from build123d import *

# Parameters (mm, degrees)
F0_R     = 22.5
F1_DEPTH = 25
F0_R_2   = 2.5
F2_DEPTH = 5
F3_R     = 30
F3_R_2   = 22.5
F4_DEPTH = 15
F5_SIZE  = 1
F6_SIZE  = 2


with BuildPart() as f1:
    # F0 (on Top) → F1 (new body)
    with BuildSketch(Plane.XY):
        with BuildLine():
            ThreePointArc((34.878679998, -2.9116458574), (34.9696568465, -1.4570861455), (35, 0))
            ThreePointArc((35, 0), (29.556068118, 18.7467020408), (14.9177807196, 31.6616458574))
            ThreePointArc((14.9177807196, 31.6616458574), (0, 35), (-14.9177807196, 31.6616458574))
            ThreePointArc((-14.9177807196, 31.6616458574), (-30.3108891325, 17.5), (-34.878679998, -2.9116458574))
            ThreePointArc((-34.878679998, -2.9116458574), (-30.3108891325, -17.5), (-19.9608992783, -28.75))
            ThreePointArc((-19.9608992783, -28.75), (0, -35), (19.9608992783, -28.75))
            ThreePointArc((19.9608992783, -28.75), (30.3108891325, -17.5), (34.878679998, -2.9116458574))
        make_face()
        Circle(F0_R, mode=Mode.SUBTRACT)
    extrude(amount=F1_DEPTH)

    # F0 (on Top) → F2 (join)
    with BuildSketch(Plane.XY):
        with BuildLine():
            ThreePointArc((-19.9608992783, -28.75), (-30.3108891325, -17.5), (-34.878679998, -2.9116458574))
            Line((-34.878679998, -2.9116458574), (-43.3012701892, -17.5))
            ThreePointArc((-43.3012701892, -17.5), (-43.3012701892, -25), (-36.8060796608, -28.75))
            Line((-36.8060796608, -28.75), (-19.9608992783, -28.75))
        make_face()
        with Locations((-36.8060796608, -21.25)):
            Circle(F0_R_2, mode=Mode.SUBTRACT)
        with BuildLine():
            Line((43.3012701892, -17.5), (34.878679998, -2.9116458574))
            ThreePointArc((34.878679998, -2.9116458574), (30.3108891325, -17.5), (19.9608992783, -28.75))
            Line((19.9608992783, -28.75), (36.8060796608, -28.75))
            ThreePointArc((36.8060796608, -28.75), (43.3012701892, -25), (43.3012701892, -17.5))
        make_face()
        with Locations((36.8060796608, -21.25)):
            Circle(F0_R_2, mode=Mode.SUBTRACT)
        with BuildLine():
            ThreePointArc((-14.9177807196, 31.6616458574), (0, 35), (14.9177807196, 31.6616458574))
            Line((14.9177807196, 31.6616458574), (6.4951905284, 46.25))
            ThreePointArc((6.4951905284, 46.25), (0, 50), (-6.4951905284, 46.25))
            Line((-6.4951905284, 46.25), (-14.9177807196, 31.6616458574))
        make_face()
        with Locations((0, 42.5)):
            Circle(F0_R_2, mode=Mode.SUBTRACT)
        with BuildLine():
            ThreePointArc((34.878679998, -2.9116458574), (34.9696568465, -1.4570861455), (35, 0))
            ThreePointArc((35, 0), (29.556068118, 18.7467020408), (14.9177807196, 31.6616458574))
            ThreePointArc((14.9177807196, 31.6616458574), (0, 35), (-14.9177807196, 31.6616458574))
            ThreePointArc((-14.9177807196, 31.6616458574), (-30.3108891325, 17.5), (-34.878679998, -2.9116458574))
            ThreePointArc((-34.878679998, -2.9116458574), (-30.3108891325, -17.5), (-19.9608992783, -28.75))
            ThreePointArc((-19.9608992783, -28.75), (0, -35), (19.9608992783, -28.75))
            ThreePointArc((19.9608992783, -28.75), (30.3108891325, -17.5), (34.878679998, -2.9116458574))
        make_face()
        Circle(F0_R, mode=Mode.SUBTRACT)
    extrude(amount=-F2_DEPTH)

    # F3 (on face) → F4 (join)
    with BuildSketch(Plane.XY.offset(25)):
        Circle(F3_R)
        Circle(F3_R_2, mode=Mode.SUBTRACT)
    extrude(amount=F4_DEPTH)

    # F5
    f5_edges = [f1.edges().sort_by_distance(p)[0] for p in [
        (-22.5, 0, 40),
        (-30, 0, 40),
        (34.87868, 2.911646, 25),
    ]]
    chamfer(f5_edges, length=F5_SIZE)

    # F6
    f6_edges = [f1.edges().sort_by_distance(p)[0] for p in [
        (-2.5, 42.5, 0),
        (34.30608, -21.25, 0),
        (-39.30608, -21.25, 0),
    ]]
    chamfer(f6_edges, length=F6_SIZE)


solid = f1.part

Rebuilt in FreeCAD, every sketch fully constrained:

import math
import FreeCAD as App
import Part
import Sketcher
Q = App.Units.Quantity


def edges_at(feature, points):
    """Names of the edges that pass closest to the given points."""
    edges = feature.Shape.Edges
    near = lambda p: min(range(len(edges)), key=lambda i: edges[i].distToShape(Part.Vertex(*p))[0])
    return sorted({f"Edge{near(p) + 1}" for p in points})

doc = App.newDocument("Part")
body = doc.addObject("PartDesign::Body", "Body")

# Sketch on XY plane
sketch1 = body.newObject("Sketcher::SketchObject", "Sketch")
sketch1.AttachmentSupport = (doc.getObject("XY_Plane"), [""])
sketch1.MapMode = "FlatFace"
sketch1.addGeometry([
    Part.ArcOfCircle(Part.Circle(App.Vector(0, 0, 0), App.Vector(0, 0, 1), 35), math.radians(-4.77), math.radians(0)),  # 0
    Part.ArcOfCircle(Part.Circle(App.Vector(0, 0, 0), App.Vector(0, 0, 1), 35), math.radians(0), math.radians(65)),  # 1
    Part.ArcOfCircle(Part.Circle(App.Vector(0, 0, 0), App.Vector(0, 0, 1), 35), math.radians(65), math.radians(115)),  # 2
    Part.ArcOfCircle(Part.Circle(App.Vector(0, 0, 0), App.Vector(0, 0, 1), 35), math.radians(115), math.radians(185)),  # 3
    Part.ArcOfCircle(Part.Circle(App.Vector(0, 0, 0), App.Vector(0, 0, 1), 35), math.radians(-175), math.radians(-125)),  # 4
    Part.ArcOfCircle(Part.Circle(App.Vector(0, 0, 0), App.Vector(0, 0, 1), 35), math.radians(-125), math.radians(-55)),  # 5
    Part.ArcOfCircle(Part.Circle(App.Vector(0, 0, 0), App.Vector(0, 0, 1), 35), math.radians(-55), math.radians(-5)),  # 6
    Part.Circle(App.Vector(0, 0, 0), App.Vector(0, 0, 1), 22.5),  # 7
], False)
sketch1.addConstraint([
    Sketcher.Constraint("Tangent", 0, 2, 1, 1),
    Sketcher.Constraint("Tangent", 1, 2, 2, 1),
    Sketcher.Constraint("Tangent", 2, 2, 3, 1),
    Sketcher.Constraint("Tangent", 3, 2, 4, 1),
    Sketcher.Constraint("Tangent", 4, 2, 5, 1),
    Sketcher.Constraint("Tangent", 5, 2, 6, 1),
    Sketcher.Constraint("Tangent", 6, 2, 0, 1),
    Sketcher.Constraint("Coincident", 0, 3, -1, 1),
    Sketcher.Constraint("Coincident", 2, 3, -1, 1),
    Sketcher.Constraint("Coincident", 4, 3, -1, 1),
    Sketcher.Constraint("Coincident", 7, 3, -1, 1),
    Sketcher.Constraint("PointOnObject", 0, 2, -1),
    Sketcher.Constraint("Horizontal", 1, 2, 2, 2),
    Sketcher.Constraint("Horizontal", 4, 2, 5, 2),
    Sketcher.Constraint("Horizontal", 3, 2, 6, 2),
    Sketcher.Constraint("Diameter", 7, Q("45 mm")),
    Sketcher.Constraint("Radius", 0, Q("35 mm")),
    Sketcher.Constraint("DistanceY", 4, 2, -1, 1, Q("28.75 mm")),
    Sketcher.Constraint("DistanceX", -1, 1, 1, 2, Q("14.917781 mm")),
    Sketcher.Constraint("DistanceX", 3, 2, -1, 1, Q("34.87868 mm")),
])
pad1 = body.newObject("PartDesign::Pad", "Pad")
pad1.Profile = sketch1
pad1.Length = 25

# Sketch on XY plane
sketch2 = body.newObject("Sketcher::SketchObject", "Sketch001")
sketch2.AttachmentSupport = (doc.getObject("XY_Plane"), [""])
sketch2.MapMode = "FlatFace"
sketch2.addGeometry([
    Part.LineSegment(App.Vector(-36.8, -28.8, 0), App.Vector(-20, -28.8, 0)),  # 0
    Part.ArcOfCircle(Part.Circle(App.Vector(0, 0, 0), App.Vector(0, 0, 1), 35), math.radians(-125), math.radians(-55)),  # 1
    Part.LineSegment(App.Vector(20, -28.8, 0), App.Vector(36.8, -28.8, 0)),  # 2
    Part.ArcOfCircle(Part.Circle(App.Vector(36.8, -21.2, 0), App.Vector(0, 0, 1), 7.5), math.radians(-90), math.radians(30)),  # 3
    Part.LineSegment(App.Vector(43.3, -17.5, 0), App.Vector(34.9, -2.9, 0)),  # 4
    Part.ArcOfCircle(Part.Circle(App.Vector(0, 0, 0), App.Vector(0, 0, 1), 35), math.radians(-4.77), math.radians(0)),  # 5
    Part.ArcOfCircle(Part.Circle(App.Vector(0, 0, 0), App.Vector(0, 0, 1), 35), math.radians(0), math.radians(65)),  # 6
    Part.LineSegment(App.Vector(14.9, 31.7, 0), App.Vector(6.5, 46.2, 0)),  # 7
    Part.ArcOfCircle(Part.Circle(App.Vector(0, 42.5, 0), App.Vector(0, 0, 1), 7.5), math.radians(30), math.radians(150)),  # 8
    Part.LineSegment(App.Vector(-6.5, 46.2, 0), App.Vector(-14.9, 31.7, 0)),  # 9
    Part.ArcOfCircle(Part.Circle(App.Vector(0, 0, 0), App.Vector(0, 0, 1), 35), math.radians(115), math.radians(185)),  # 10
    Part.LineSegment(App.Vector(-34.9, -2.9, 0), App.Vector(-43.3, -17.5, 0)),  # 11
    Part.ArcOfCircle(Part.Circle(App.Vector(-36.8, -21.2, 0), App.Vector(0, 0, 1), 7.5), math.radians(150), math.radians(270)),  # 12
    Part.Circle(App.Vector(-36.8, -21.2, 0), App.Vector(0, 0, 1), 2.5),  # 13
    Part.Circle(App.Vector(36.8, -21.2, 0), App.Vector(0, 0, 1), 2.5),  # 14
    Part.Circle(App.Vector(0, 0, 0), App.Vector(0, 0, 1), 22.5),  # 15
    Part.Circle(App.Vector(0, 42.5, 0), App.Vector(0, 0, 1), 2.5),  # 16
], False)
sketch2.addConstraint([
    Sketcher.Constraint("Coincident", 0, 2, 1, 1),
    Sketcher.Constraint("Coincident", 1, 2, 2, 1),
    Sketcher.Constraint("Tangent", 2, 2, 3, 1),
    Sketcher.Constraint("Tangent", 3, 2, 4, 1),
    Sketcher.Constraint("Coincident", 4, 2, 5, 1),
    Sketcher.Constraint("Tangent", 5, 2, 6, 1),
    Sketcher.Constraint("Coincident", 6, 2, 7, 1),
    Sketcher.Constraint("Tangent", 7, 2, 8, 1),
    Sketcher.Constraint("Tangent", 8, 2, 9, 1),
    Sketcher.Constraint("Coincident", 9, 2, 10, 1),
    Sketcher.Constraint("Coincident", 10, 2, 11, 1),
    Sketcher.Constraint("Tangent", 11, 2, 12, 1),
    Sketcher.Constraint("Tangent", 12, 2, 0, 1),
    Sketcher.Constraint("Horizontal", 0),
    Sketcher.Constraint("Horizontal", 2),
    Sketcher.Constraint("Coincident", 1, 3, -1, 1),
    Sketcher.Constraint("Coincident", 5, 3, -1, 1),
    Sketcher.Constraint("Coincident", 10, 3, -1, 1),
    Sketcher.Constraint("Coincident", 15, 3, -1, 1),
    Sketcher.Constraint("Coincident", 13, 3, 12, 3),
    Sketcher.Constraint("Coincident", 14, 3, 3, 3),
    Sketcher.Constraint("Coincident", 16, 3, 8, 3),
    Sketcher.Constraint("Equal", 1, 5),
    Sketcher.Constraint("Equal", 5, 6),
    Sketcher.Constraint("Equal", 3, 8),
    Sketcher.Constraint("Equal", 6, 10),
    Sketcher.Constraint("Equal", 8, 12),
    Sketcher.Constraint("Equal", 13, 14),
    Sketcher.Constraint("Equal", 14, 16),
    Sketcher.Constraint("Symmetric", 3, 3, 12, 3, -2),
    Sketcher.Constraint("Symmetric", 7, 2, 8, 2, -2),
    Sketcher.Constraint("PointOnObject", 5, 2, -1),
    Sketcher.Constraint("Parallel", 4, 7),
    Sketcher.Constraint("Parallel", 9, 11),
    Sketcher.Constraint("Equal", 4, 7),
    Sketcher.Constraint("Diameter", 13, Q("5 mm")),
    Sketcher.Constraint("Diameter", 15, Q("45 mm")),
    Sketcher.Constraint("Radius", 1, Q("35 mm")),
    Sketcher.Constraint("Radius", 3, Q("7.5 mm")),
    Sketcher.Constraint("Angle", 4, Q("120 deg")),
    Sketcher.Constraint("DistanceY", -1, 1, 8, 3, Q("42.5 mm")),
    Sketcher.Constraint("DistanceY", 3, 2, -1, 1, Q("17.5 mm")),
])
pad2 = body.newObject("PartDesign::Pad", "Pad001")
pad2.Profile = sketch2
pad2.Length = 5
pad2.Reversed = True

# Sketch on XY plane
sketch3 = body.newObject("Sketcher::SketchObject", "Sketch002")
sketch3.AttachmentSupport = (doc.getObject("XY_Plane"), [""])
sketch3.MapMode = "FlatFace"
sketch3.AttachmentOffset = App.Placement(App.Vector(0, 0, 25), App.Rotation())
sketch3.addGeometry([
    Part.Circle(App.Vector(0, 0, 0), App.Vector(0, 0, 1), 30),
    Part.Circle(App.Vector(0, 0, 0), App.Vector(0, 0, 1), 22),
], False)
sketch3.addConstraint([
    Sketcher.Constraint("Coincident", 0, 3, -1, 1),
    Sketcher.Constraint("Coincident", 1, 3, -1, 1),
    Sketcher.Constraint("Diameter", 0, Q("60 mm")),
    Sketcher.Constraint("Diameter", 1, Q("45 mm")),
])
pad3 = body.newObject("PartDesign::Pad", "Pad002")
pad3.Profile = sketch3
pad3.Length = 15
doc.recompute()

chamfer = body.newObject("PartDesign::Chamfer", "Chamfer")
chamfer.Base = (pad3, edges_at(pad3, [(-22.5, 0, 40), (-30, 0, 40), (29.556, 18.747, 25)]))
chamfer.Size = 1
doc.recompute()

chamfer2 = body.newObject("PartDesign::Chamfer", "Chamfer001")
chamfer2.Base = (chamfer, edges_at(chamfer, [(-2.5, 42.5, 0), (34.306, -21.25, 0), (-39.306, -21.25, 0)]))
chamfer2.Size = 2

doc.recompute()
